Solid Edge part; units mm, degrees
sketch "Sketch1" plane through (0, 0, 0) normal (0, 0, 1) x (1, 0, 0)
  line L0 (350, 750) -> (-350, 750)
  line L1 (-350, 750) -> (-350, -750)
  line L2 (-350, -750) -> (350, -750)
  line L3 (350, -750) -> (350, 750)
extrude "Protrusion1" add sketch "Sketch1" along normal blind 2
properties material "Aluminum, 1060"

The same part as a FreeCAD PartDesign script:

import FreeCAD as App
import Part
import Sketcher

doc = App.newDocument("Part")
body = doc.addObject("PartDesign::Body", "Body")

# Sketch on XY plane
sketch1 = body.newObject("Sketcher::SketchObject", "Sketch")
sketch1.AttachmentSupport = (doc.getObject("XY_Plane"), [""])
sketch1.MapMode = "FlatFace"
sketch1.addGeometry([
    Part.LineSegment(App.Vector(350, -750, 0), App.Vector(350, 750, 0)),
    Part.LineSegment(App.Vector(350, 750, 0), App.Vector(-350, 750, 0)),
    Part.LineSegment(App.Vector(-350, 750, 0), App.Vector(-350, -750, 0)),
    Part.LineSegment(App.Vector(-350, -750, 0), App.Vector(350, -750, 0)),
], False)
sketch1.addConstraint([
    Sketcher.Constraint("Coincident", 0, 2, 1, 1),
    Sketcher.Constraint("Coincident", 1, 2, 2, 1),
    Sketcher.Constraint("Coincident", 2, 2, 3, 1),
    Sketcher.Constraint("Coincident", 3, 2, 0, 1),
    Sketcher.Constraint("Vertical", 0),
    Sketcher.Constraint("Horizontal", 1),
    Sketcher.Constraint("Vertical", 2),
    Sketcher.Constraint("Horizontal", 3),
    Sketcher.Constraint("Symmetric", 0, 2, 2, 2, -1, 1),
    Sketcher.Constraint("DistanceX", 1, 2, 1, 1, 700.0),
    Sketcher.Constraint("DistanceY", 0, 1, 0, 2, 1500.0),
])
pad1 = body.newObject("PartDesign::Pad", "Pad")
pad1.Profile = sketch1
pad1.Length = 2

doc.recompute()
